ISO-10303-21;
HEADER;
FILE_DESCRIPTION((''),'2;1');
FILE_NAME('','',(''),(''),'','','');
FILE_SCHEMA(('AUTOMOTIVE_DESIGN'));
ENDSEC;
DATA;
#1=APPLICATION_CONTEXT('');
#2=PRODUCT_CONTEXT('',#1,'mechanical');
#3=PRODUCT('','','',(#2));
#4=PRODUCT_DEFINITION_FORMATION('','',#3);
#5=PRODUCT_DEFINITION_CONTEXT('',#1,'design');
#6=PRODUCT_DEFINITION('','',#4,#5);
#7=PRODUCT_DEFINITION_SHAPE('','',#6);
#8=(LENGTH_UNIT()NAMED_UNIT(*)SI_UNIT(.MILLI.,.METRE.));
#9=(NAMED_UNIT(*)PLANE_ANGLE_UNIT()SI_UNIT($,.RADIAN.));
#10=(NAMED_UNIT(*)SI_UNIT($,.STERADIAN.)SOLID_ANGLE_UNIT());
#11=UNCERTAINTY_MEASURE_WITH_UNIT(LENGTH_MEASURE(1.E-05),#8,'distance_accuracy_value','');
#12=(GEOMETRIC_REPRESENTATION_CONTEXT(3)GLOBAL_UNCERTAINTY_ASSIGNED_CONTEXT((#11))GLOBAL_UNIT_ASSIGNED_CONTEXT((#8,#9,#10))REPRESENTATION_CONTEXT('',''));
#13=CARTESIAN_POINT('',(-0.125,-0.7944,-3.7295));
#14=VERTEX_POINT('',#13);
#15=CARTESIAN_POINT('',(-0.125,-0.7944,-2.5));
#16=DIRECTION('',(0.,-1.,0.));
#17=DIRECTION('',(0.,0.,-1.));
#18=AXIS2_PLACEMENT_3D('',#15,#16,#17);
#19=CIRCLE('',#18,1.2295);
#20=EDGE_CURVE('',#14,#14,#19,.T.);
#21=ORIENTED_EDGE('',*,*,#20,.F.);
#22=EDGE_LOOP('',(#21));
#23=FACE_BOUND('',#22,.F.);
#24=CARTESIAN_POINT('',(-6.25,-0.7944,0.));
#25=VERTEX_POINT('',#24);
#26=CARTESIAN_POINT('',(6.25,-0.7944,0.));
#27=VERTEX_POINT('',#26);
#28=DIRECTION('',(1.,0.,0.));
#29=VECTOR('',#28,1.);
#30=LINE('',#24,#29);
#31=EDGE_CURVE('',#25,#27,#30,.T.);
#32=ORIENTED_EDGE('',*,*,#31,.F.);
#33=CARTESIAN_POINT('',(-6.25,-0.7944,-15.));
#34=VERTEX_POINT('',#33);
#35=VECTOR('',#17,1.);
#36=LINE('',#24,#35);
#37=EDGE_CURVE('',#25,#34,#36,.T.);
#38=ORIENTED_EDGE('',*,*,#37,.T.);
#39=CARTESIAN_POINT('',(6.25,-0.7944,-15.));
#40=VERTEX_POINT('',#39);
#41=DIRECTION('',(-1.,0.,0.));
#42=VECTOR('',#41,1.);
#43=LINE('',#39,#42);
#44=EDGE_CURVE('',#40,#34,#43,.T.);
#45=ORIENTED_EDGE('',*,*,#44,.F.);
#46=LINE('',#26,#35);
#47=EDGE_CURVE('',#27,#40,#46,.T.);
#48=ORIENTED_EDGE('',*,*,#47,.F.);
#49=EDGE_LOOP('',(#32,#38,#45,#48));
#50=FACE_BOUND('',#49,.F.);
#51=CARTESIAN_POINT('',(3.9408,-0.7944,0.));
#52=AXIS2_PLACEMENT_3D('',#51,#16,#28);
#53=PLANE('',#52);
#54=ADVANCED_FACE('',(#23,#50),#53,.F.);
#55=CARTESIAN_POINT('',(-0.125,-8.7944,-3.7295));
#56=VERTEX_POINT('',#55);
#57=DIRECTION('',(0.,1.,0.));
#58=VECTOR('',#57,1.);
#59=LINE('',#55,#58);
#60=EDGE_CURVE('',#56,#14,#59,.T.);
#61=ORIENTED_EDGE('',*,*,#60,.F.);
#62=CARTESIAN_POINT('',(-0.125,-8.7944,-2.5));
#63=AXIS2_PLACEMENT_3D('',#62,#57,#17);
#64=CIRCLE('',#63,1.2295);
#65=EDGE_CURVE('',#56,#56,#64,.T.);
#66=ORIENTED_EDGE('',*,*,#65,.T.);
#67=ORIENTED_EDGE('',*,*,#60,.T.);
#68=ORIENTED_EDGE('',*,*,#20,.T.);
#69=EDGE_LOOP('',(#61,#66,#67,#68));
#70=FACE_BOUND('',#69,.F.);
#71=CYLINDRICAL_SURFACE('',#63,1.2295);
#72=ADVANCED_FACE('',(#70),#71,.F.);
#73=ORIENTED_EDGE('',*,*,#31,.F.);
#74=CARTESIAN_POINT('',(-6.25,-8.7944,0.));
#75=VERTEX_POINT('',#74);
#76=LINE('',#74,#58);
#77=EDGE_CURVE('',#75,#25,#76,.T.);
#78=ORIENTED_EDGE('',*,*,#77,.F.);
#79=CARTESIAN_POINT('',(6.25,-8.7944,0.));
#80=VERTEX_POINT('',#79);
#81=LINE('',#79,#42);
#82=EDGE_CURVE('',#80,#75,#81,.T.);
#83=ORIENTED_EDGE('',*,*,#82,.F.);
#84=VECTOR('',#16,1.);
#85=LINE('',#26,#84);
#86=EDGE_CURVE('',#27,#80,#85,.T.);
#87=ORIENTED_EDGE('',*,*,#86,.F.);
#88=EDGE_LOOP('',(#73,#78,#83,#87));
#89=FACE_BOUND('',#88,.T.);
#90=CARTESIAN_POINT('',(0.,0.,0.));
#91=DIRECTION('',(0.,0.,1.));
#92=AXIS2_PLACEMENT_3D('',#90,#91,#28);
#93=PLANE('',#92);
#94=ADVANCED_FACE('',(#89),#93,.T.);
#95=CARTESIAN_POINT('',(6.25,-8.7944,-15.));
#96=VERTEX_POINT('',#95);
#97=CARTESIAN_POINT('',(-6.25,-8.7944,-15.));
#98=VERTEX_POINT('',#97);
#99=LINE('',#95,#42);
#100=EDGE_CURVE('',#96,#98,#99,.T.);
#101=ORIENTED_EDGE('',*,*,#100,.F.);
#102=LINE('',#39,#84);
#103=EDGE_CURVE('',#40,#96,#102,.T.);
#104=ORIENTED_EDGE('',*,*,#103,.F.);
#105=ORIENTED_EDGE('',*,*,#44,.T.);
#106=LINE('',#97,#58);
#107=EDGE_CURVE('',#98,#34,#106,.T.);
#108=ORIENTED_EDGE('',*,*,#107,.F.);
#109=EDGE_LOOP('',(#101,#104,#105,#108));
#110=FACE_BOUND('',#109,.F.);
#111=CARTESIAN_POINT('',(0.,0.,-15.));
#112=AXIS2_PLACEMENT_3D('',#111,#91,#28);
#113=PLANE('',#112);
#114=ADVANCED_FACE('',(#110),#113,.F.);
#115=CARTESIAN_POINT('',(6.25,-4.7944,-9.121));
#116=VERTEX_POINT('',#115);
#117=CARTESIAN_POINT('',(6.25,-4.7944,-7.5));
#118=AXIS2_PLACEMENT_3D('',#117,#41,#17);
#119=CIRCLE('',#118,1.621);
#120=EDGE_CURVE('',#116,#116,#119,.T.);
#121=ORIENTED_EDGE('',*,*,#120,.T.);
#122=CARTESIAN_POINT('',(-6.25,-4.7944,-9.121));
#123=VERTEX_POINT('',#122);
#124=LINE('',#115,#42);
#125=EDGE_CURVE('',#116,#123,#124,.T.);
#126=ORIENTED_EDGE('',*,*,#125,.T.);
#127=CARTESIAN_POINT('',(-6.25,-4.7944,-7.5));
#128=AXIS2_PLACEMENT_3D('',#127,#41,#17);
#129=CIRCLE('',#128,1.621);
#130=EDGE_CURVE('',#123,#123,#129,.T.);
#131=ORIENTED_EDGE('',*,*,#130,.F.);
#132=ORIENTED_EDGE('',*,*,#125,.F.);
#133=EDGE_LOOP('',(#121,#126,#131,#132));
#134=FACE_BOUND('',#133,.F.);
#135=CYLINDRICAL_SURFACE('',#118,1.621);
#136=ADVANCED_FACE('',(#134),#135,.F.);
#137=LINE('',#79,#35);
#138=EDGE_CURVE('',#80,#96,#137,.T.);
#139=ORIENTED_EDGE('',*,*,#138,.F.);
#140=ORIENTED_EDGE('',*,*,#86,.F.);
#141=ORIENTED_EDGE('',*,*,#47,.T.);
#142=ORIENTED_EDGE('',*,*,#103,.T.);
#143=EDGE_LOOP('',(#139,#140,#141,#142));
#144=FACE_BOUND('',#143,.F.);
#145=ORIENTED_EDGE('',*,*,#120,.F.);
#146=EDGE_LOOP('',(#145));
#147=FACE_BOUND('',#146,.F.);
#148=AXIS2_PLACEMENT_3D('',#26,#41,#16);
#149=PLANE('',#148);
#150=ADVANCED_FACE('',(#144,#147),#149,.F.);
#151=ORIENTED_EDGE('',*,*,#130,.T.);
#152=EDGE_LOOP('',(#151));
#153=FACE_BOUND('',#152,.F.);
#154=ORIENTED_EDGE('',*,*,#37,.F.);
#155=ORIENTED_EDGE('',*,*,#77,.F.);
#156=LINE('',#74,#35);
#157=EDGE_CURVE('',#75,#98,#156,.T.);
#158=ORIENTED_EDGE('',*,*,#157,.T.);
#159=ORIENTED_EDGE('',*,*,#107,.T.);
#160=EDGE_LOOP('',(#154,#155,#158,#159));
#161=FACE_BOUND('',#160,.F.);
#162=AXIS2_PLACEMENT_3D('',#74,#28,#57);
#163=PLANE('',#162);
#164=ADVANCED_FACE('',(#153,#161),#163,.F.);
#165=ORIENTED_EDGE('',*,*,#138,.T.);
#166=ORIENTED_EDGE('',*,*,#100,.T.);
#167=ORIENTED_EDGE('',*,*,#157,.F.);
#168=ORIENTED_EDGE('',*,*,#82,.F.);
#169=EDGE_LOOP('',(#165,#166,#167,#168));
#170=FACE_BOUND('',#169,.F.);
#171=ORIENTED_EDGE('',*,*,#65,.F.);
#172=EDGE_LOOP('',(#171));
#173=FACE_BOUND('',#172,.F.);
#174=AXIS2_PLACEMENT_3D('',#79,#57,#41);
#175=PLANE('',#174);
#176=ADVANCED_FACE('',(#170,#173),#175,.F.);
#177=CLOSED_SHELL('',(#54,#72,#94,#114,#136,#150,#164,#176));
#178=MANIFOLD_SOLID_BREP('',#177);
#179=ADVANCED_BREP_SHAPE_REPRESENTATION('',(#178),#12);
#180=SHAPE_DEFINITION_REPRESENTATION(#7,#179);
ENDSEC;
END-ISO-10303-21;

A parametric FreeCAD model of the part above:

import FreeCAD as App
import Part
import Sketcher
Q = App.Units.Quantity


def add_polygon(sketch, points):
    """Adds a closed chain of lines whose ends are joined by coincident constraints."""
    first, n = sketch.GeometryCount, len(points)
    for a, b in zip(points, points[1:] + points[:1]):
        sketch.addGeometry(Part.LineSegment(App.Vector(*a, 0), App.Vector(*b, 0)), False)
    for i in range(n):
        sketch.addConstraint(Sketcher.Constraint("Coincident", first + i, 2, first + (i + 1) % n, 1))

doc = App.newDocument("Part")
body = doc.addObject("PartDesign::Body", "Body")

# Sketch on XY plane
sketch1 = doc.addObject("Sketcher::SketchObject", "Sketch")
body.addObject(sketch1)
sketch1.AttachmentSupport = (doc.XY_Plane, [""])
sketch1.MapMode = "FlatFace"
add_polygon(sketch1, [(6, -1), (-6, -1), (-6, -9), (6, -9)])  # lines 0-3
sketch1.addConstraint([
    Sketcher.Constraint("Horizontal", 0),
    Sketcher.Constraint("Vertical", 1),
    Sketcher.Constraint("Horizontal", 2),
    Sketcher.Constraint("Vertical", 3),
    Sketcher.Constraint("DistanceY", 1, 2, 1, 1, Q("8 mm")),
    Sketcher.Constraint("DistanceX", 0, 2, 0, 1, Q("12.5 mm")),
    Sketcher.Constraint("DistanceX", 0, 2, -1, 1, Q("6.25 mm")),
    Sketcher.Constraint("DistanceY", 0, 2, -1, 1, Q("0.7944 mm")),
])
pad1 = doc.addObject("PartDesign::Pad", "Pad")
body.addObject(pad1)
pad1.Profile = sketch1
pad1.Length = 15
pad1.Reversed = True

# Sketch on XZ plane
sketch2 = doc.addObject("Sketcher::SketchObject", "Sketch001")
body.addObject(sketch2)
sketch2.AttachmentSupport = (doc.XZ_Plane, [""])
sketch2.MapMode = "FlatFace"
sketch2.AttachmentOffset = App.Placement(App.Vector(0, 0, 8.7944), App.Rotation())
sketch2.addGeometry(Part.Circle(App.Vector(-0.1, -2.5, 0), App.Vector(0, 0, 1), 1.2), False)
sketch2.addConstraint([
    Sketcher.Constraint("Diameter", 0, Q("2.459 mm")),
    Sketcher.Constraint("DistanceY", 0, 3, -1, 1, Q("2.5 mm")),
    Sketcher.Constraint("DistanceX", 0, 3, -1, 1, Q("0.125 mm")),
])
doc.recompute()
hole = doc.addObject("PartDesign::Hole", "Hole")
body.addObject(hole)
hole.Profile = sketch2
hole.ThreadType = "None"
hole.Diameter = 2.459
hole.DepthType = "ThroughAll"

# Sketch on YZ plane
sketch3 = doc.addObject("Sketcher::SketchObject", "Sketch002")
body.addObject(sketch3)
sketch3.AttachmentSupport = (doc.YZ_Plane, [""])
sketch3.MapMode = "FlatFace"
sketch3.AttachmentOffset = App.Placement(App.Vector(0, 0, 6.25), App.Rotation())
sketch3.addGeometry(Part.Circle(App.Vector(-4.8, -7.5, 0), App.Vector(0, 0, 1), 1.6), False)
sketch3.addConstraint([
    Sketcher.Constraint("Diameter", 0, Q("3.242 mm")),
    Sketcher.Constraint("DistanceY", 0, 3, -1, 1, Q("7.5 mm")),
    Sketcher.Constraint("DistanceX", 0, 3, -1, 1, Q("4.7944 mm")),
])
doc.recompute()
hole2 = doc.addObject("PartDesign::Hole", "Hole001")
body.addObject(hole2)
hole2.Profile = sketch3
hole2.ThreadType = "None"
hole2.Diameter = 3.242
hole2.DepthType = "ThroughAll"

doc.recompute()
